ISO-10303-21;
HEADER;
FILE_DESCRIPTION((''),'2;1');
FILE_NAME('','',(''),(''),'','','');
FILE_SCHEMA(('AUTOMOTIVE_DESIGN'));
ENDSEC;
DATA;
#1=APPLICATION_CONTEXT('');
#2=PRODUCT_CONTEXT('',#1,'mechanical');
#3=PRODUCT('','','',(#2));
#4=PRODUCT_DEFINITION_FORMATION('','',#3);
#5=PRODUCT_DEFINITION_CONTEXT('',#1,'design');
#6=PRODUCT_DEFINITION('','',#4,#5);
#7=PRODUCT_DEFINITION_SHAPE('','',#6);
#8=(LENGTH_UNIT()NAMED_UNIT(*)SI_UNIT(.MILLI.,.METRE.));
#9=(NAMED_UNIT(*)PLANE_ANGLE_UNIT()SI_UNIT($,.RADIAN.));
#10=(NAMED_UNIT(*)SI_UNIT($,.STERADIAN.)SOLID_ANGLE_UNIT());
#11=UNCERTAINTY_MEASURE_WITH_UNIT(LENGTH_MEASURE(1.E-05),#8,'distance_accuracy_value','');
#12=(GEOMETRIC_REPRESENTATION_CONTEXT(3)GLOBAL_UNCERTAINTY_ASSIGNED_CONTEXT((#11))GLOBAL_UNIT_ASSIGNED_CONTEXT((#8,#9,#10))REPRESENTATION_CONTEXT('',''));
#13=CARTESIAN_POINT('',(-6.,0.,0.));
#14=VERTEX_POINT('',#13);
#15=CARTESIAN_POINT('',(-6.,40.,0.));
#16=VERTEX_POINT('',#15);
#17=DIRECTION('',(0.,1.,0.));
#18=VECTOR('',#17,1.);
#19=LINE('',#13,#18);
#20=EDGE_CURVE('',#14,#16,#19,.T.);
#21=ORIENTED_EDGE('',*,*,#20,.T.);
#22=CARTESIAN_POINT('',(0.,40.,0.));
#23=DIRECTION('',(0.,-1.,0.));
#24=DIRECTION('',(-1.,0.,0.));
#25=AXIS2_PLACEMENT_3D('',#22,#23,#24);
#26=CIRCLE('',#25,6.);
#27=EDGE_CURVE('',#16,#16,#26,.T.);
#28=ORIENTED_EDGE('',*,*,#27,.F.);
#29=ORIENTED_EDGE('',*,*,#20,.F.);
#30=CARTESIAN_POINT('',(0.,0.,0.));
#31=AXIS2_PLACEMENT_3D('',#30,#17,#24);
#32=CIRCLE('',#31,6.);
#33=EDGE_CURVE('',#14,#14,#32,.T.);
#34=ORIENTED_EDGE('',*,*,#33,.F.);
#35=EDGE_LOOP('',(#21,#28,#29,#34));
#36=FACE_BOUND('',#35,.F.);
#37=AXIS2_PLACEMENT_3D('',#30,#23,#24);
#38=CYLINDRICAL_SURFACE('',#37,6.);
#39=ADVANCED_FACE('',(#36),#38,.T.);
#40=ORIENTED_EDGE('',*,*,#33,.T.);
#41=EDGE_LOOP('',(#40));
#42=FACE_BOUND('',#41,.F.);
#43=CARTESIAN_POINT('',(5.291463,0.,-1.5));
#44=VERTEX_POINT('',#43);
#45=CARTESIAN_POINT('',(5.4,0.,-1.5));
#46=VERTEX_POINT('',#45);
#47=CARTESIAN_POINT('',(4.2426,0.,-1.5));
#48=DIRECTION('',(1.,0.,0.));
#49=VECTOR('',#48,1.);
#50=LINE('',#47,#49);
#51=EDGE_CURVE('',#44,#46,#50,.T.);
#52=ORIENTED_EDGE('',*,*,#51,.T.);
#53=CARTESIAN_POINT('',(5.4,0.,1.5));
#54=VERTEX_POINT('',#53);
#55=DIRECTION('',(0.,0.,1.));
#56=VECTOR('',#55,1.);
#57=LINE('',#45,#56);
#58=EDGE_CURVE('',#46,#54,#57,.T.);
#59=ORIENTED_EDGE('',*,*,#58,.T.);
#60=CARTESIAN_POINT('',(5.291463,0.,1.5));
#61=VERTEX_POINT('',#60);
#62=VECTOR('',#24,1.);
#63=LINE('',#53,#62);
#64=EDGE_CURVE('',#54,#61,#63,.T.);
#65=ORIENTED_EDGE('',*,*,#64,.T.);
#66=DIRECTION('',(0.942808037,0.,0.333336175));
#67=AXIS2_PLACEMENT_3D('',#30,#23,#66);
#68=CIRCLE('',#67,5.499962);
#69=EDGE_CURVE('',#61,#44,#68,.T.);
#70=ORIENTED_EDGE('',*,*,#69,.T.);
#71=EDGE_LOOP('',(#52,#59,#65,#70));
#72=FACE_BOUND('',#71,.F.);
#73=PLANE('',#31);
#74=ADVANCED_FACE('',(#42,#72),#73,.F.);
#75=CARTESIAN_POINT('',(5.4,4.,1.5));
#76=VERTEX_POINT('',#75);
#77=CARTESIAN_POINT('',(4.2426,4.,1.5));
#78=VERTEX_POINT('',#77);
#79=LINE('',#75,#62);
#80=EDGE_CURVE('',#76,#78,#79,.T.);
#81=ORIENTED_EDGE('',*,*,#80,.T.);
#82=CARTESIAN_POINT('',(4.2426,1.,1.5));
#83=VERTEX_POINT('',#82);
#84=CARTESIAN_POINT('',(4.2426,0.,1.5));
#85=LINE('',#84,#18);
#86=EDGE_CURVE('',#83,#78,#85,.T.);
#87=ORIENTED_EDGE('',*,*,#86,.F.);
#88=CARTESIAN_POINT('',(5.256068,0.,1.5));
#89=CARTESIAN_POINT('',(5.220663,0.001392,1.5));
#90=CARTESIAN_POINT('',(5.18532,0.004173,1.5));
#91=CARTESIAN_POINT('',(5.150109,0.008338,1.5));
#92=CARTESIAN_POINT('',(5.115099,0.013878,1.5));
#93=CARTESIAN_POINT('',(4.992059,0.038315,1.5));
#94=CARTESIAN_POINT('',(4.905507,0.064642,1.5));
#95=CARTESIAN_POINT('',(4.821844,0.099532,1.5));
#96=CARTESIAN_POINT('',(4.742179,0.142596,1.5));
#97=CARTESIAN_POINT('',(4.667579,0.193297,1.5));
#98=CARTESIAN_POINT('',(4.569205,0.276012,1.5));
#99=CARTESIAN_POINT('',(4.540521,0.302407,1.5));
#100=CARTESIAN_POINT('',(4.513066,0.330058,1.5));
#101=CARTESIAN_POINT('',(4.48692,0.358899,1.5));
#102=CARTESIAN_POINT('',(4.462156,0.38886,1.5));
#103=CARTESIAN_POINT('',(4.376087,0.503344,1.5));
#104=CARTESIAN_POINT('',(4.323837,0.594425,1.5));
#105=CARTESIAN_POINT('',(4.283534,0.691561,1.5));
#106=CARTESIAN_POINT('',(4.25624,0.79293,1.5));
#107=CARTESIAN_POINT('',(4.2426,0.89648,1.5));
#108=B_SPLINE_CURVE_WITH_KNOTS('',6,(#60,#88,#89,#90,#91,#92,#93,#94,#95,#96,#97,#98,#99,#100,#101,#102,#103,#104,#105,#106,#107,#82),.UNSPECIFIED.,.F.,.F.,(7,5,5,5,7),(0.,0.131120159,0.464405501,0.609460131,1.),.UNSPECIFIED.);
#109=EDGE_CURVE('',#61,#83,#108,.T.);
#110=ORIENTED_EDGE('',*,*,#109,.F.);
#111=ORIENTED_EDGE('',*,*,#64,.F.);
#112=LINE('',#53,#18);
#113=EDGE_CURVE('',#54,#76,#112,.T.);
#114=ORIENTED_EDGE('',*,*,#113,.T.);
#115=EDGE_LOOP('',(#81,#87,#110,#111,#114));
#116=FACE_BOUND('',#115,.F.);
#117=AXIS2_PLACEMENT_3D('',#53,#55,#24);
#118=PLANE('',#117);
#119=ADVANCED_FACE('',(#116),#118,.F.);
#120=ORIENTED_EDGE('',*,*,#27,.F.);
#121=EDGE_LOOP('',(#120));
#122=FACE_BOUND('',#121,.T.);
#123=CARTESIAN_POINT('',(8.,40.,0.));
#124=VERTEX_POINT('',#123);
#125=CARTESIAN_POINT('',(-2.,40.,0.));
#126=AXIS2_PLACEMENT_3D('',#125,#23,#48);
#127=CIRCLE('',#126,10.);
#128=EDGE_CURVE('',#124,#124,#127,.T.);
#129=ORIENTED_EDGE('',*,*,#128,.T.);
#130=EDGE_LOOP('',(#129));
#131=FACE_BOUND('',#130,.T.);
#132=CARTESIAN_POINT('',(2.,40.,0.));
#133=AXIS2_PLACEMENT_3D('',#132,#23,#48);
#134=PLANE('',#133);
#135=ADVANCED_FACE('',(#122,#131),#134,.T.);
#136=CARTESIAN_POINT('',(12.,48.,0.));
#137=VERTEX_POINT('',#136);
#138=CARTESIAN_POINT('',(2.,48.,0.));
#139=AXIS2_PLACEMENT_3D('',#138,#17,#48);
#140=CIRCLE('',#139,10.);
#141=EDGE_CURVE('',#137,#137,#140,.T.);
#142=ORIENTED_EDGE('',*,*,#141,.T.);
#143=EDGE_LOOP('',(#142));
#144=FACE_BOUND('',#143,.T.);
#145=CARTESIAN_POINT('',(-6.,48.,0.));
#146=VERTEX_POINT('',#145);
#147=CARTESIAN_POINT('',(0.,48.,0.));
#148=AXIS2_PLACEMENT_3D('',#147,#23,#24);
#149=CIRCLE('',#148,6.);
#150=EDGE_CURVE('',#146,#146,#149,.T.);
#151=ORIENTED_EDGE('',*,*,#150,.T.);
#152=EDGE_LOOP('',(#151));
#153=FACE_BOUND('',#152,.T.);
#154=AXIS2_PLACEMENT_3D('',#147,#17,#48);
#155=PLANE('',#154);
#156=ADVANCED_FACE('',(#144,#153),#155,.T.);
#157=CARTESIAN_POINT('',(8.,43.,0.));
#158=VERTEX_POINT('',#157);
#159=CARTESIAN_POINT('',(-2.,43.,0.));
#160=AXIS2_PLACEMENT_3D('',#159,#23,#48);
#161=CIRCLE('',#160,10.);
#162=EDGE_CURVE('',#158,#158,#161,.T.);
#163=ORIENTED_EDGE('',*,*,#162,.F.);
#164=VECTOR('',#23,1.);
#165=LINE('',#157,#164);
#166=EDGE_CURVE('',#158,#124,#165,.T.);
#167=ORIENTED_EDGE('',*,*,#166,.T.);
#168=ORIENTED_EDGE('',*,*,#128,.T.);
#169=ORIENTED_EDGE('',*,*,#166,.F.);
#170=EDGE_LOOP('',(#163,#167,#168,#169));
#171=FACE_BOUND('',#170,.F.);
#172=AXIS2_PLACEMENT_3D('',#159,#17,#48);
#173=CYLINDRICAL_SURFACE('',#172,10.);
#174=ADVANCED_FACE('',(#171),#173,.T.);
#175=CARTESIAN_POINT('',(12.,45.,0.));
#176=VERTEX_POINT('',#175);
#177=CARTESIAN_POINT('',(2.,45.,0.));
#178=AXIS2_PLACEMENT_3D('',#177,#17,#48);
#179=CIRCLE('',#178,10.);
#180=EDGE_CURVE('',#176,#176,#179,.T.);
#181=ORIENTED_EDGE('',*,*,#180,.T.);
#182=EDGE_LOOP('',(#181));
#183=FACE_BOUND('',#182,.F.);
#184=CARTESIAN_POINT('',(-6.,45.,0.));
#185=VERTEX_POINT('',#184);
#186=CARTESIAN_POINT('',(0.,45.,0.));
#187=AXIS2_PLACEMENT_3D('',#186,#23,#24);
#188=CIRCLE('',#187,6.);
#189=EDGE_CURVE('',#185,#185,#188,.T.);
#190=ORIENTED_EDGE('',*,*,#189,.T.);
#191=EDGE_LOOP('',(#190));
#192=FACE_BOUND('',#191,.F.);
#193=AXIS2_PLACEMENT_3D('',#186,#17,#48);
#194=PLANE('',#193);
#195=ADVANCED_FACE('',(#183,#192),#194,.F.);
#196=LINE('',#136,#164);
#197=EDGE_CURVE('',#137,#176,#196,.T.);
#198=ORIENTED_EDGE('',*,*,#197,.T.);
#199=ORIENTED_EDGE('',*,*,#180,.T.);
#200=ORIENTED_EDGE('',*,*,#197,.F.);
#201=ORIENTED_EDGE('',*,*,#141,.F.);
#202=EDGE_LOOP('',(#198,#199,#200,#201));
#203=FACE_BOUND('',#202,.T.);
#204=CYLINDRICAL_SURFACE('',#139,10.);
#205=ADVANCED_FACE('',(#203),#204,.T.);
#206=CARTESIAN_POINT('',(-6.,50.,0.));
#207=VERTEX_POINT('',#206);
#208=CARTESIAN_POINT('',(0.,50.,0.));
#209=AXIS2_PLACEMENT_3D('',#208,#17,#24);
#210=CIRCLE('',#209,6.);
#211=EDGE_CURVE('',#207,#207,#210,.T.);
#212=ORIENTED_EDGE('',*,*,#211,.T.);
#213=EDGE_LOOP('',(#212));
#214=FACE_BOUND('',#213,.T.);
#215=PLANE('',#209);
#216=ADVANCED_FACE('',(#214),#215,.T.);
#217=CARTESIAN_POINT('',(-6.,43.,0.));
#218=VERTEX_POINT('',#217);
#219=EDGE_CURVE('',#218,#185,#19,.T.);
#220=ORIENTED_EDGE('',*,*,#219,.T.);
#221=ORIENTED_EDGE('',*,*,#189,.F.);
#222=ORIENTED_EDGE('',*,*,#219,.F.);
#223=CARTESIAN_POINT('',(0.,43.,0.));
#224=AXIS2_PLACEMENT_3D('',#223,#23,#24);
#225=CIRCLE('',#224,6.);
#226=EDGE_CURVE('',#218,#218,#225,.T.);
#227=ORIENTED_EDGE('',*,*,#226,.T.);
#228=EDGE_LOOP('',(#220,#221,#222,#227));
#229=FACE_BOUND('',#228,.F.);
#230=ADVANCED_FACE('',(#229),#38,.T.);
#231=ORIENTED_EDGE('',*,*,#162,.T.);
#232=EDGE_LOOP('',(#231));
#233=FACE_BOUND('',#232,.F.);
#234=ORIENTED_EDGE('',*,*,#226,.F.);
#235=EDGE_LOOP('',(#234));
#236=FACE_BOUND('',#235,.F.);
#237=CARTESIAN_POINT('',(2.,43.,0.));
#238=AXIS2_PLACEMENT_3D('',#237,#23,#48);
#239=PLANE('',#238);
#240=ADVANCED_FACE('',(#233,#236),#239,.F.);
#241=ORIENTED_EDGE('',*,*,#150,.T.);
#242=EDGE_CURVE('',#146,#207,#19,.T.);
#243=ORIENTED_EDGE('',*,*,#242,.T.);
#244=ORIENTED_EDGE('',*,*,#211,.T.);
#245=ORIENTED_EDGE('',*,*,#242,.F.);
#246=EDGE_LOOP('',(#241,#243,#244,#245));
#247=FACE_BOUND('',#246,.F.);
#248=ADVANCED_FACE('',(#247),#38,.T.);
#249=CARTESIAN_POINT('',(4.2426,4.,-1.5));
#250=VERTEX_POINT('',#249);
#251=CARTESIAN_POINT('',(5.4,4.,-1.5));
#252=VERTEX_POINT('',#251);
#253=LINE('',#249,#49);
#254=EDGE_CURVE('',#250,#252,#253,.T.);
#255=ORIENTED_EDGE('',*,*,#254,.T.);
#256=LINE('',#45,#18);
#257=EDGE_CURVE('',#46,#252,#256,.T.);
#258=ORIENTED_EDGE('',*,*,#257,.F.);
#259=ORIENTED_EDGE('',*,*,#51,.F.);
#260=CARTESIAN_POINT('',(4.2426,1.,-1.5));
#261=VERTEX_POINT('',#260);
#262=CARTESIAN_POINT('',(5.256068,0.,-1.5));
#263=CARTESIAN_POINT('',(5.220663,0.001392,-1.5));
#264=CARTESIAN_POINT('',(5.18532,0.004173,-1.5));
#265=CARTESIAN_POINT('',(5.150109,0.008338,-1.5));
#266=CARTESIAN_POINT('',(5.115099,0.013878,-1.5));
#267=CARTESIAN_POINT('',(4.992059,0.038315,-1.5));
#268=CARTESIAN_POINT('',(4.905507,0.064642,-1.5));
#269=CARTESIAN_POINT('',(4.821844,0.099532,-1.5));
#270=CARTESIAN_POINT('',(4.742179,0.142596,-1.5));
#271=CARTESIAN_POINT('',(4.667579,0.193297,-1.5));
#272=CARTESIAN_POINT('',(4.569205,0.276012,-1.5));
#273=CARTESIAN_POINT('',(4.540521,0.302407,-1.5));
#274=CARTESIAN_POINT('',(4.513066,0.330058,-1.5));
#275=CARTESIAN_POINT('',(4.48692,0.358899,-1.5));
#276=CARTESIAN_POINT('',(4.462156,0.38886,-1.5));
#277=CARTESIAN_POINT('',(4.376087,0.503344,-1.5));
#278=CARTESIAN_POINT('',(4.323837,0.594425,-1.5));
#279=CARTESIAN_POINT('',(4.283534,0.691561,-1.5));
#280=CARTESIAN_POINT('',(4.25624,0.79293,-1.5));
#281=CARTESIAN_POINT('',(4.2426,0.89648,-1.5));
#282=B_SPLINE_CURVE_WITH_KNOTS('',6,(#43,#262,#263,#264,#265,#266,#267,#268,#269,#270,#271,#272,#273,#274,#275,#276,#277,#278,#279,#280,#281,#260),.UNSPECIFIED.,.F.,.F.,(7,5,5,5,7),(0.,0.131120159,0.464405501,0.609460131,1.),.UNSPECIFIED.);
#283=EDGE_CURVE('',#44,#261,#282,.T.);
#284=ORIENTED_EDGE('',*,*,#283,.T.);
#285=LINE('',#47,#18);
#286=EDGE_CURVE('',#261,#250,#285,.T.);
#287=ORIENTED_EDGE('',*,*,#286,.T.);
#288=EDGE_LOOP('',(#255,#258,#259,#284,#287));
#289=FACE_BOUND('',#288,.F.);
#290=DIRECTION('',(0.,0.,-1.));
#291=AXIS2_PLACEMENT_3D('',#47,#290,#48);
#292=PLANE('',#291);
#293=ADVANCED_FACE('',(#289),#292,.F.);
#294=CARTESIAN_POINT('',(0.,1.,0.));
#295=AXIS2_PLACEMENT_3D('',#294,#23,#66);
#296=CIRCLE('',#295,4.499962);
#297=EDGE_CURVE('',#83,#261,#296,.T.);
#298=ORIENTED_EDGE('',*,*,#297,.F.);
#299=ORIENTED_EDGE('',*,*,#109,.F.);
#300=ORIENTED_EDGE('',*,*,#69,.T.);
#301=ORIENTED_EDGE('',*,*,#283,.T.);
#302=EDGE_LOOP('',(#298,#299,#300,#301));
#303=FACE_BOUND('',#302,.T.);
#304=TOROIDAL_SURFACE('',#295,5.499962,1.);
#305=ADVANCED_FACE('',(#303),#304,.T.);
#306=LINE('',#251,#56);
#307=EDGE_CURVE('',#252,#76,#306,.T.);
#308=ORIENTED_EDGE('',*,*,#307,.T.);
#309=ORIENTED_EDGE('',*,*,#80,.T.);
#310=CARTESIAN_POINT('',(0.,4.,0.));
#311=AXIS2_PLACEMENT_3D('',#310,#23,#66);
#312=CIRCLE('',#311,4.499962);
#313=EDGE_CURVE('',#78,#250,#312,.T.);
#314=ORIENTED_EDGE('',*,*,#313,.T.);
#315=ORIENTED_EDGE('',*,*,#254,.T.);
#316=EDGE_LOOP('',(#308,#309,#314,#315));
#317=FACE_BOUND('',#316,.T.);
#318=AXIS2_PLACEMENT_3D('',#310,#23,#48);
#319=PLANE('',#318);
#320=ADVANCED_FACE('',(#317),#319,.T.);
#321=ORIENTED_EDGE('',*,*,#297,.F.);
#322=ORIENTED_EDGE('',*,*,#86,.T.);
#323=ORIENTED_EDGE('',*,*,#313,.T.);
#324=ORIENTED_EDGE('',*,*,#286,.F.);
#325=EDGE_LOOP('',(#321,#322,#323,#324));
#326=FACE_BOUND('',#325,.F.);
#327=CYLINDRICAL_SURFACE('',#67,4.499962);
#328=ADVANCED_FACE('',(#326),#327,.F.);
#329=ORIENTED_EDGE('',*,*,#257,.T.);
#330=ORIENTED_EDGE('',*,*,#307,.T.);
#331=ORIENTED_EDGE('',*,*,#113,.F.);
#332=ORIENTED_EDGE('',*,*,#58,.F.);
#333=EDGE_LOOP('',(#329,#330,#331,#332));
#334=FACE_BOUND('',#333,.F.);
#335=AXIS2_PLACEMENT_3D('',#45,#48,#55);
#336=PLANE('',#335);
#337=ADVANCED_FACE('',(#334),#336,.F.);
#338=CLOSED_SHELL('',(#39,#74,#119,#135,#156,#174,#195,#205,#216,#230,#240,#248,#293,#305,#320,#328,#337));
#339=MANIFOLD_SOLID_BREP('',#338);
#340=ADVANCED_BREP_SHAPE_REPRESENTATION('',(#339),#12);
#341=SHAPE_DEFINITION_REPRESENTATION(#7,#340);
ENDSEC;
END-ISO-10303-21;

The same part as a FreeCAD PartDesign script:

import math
import FreeCAD as App
import Part
import Sketcher

V = App.Vector
Q = App.Units.Quantity


def edges_at(feature, points):
    """Names of the edges that pass closest to the given points."""
    edges = feature.Shape.Edges
    near = lambda p: min(range(len(edges)), key=lambda i: edges[i].distToShape(Part.Vertex(*p))[0])
    return sorted({f"Edge{near(p) + 1}" for p in points})

doc = App.newDocument("Part")
body = doc.addObject("PartDesign::Body", "Body")

sketch1 = body.newObject("Sketcher::SketchObject", "Sketch")
sketch1.AttachmentSupport = (doc.getObject("XZ_Plane"), [""])
sketch1.MapMode = "FlatFace"
sketch1.addGeometry(Part.Circle(V(0, 0, 0), V(0, 0, 1), 6), False)
sketch1.addConstraint(Sketcher.Constraint("Coincident", 0, 3, -1, 1))
sketch1.addConstraint(Sketcher.Constraint("Diameter", 0, Q("12 mm")))
pad1 = body.newObject("PartDesign::Pad", "Pad")
pad1.Profile = sketch1
pad1.Length = 50
pad1.Reversed = True

sketch2 = body.newObject("Sketcher::SketchObject", "Sketch001")
sketch2.AttachmentSupport = (doc.getObject("XZ_Plane"), [""])
sketch2.MapMode = "FlatFace"
sketch2.AttachmentOffset = App.Placement(V(0, 0, -48), App.Rotation())
sketch2.addGeometry(Part.Circle(V(2, 0, 0), V(0, 0, 1), 10), False)
sketch2.addConstraint(Sketcher.Constraint("PointOnObject", 0, 3, -1))
sketch2.addConstraint(Sketcher.Constraint("Diameter", 0, Q("20 mm")))
sketch2.addConstraint(Sketcher.Constraint("DistanceX", -1, 1, 0, 3, Q("2 mm")))
pad2 = body.newObject("PartDesign::Pad", "Pad001")
pad2.Profile = sketch2
pad2.Length = 3

sketch3 = body.newObject("Sketcher::SketchObject", "Sketch002")
sketch3.AttachmentSupport = (doc.getObject("XZ_Plane"), [""])
sketch3.MapMode = "FlatFace"
sketch3.AttachmentOffset = App.Placement(V(0, 0, -43), App.Rotation())
sketch3.addGeometry(Part.Circle(V(-2, 0, 0), V(0, 0, 1), 10), False)
sketch3.addConstraint(Sketcher.Constraint("PointOnObject", 0, 3, -1))
sketch3.addConstraint(Sketcher.Constraint("Diameter", 0, Q("20 mm")))
sketch3.addConstraint(Sketcher.Constraint("DistanceX", 0, 3, -1, 1, Q("2 mm")))
pad3 = body.newObject("PartDesign::Pad", "Pad002")
pad3.Profile = sketch3
pad3.Length = 3

sketch4 = body.newObject("Sketcher::SketchObject", "Sketch003")
sketch4.AttachmentSupport = (doc.getObject("XZ_Plane"), [""])
sketch4.MapMode = "FlatFace"
sketch4.addGeometry(Part.LineSegment(V(5.4, 1.5, 0), V(4.2, 1.5, 0)), False)
sketch4.addGeometry(Part.ArcOfCircle(Part.Circle(V(0, 0, 0), V(0, 0, 1), 4.5), math.radians(19), math.radians(341)), False)
sketch4.addGeometry(Part.LineSegment(V(4.2, -1.5, 0), V(5.4, -1.5, 0)), False)
sketch4.addGeometry(Part.LineSegment(V(5.4, -1.5, 0), V(5.4, 1.5, 0)), False)
sketch4.addConstraint(Sketcher.Constraint("Coincident", 0, 2, 1, 1))
sketch4.addConstraint(Sketcher.Constraint("Coincident", 1, 2, 2, 1))
sketch4.addConstraint(Sketcher.Constraint("Coincident", 2, 2, 3, 1))
sketch4.addConstraint(Sketcher.Constraint("Coincident", 3, 2, 0, 1))
sketch4.addConstraint(Sketcher.Constraint("Horizontal", 0))
sketch4.addConstraint(Sketcher.Constraint("Horizontal", 2))
sketch4.addConstraint(Sketcher.Constraint("Vertical", 3))
sketch4.addConstraint(Sketcher.Constraint("Coincident", 1, 3, -1, 1))
sketch4.addConstraint(Sketcher.Constraint("Vertical", 0, 2, 1, 2))
sketch4.addConstraint(Sketcher.Constraint("Radius", 1, Q("4.5 mm")))
sketch4.addConstraint(Sketcher.Constraint("DistanceY", 3, 1, 3, 2, Q("3 mm")))
sketch4.addConstraint(Sketcher.Constraint("DistanceX", -1, 1, 2, 2, Q("5.4 mm")))
pocket1 = body.newObject("PartDesign::Pocket", "Pocket")
pocket1.Profile = sketch4
pocket1.Length = 4
doc.recompute()

fillet = body.newObject("PartDesign::Fillet", "Fillet")
fillet.Base = (pocket1, edges_at(pocket1, [(-4.5, 0, 0)]))
fillet.Radius = 1

doc.recompute()
